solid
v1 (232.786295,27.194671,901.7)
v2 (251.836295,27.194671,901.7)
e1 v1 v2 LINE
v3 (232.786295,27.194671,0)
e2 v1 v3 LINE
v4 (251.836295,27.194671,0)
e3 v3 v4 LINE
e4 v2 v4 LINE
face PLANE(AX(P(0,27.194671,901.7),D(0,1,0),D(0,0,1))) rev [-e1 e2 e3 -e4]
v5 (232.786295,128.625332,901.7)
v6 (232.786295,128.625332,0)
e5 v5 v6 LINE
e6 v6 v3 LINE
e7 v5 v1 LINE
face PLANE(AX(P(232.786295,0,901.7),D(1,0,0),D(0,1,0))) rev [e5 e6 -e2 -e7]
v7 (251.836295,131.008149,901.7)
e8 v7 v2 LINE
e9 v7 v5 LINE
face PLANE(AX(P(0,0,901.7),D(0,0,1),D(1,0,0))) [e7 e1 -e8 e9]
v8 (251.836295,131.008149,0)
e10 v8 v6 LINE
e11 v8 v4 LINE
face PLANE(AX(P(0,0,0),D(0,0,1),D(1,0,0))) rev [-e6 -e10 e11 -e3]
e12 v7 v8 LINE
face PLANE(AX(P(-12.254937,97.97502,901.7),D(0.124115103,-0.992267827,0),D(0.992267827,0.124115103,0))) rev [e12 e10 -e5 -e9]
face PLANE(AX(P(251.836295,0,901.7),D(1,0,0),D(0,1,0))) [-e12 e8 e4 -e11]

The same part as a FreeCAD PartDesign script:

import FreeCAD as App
import Part
import Sketcher
from FreeCAD import Vector
Q = App.Units.Quantity

doc = App.newDocument("Part")
body = doc.addObject("PartDesign::Body", "Body")

sketch1 = body.newObject("Sketcher::SketchObject", "Sketch")
sketch1.AttachmentSupport = (doc.getObject("XY_Plane"), [""])
sketch1.MapMode = "FlatFace"
sketch1.addGeometry([
    Part.LineSegment(Vector(233, 129, 0), Vector(233, 27, 0)),
    Part.LineSegment(Vector(233, 27, 0), Vector(252, 27, 0)),
    Part.LineSegment(Vector(252, 27, 0), Vector(252, 131, 0)),
    Part.LineSegment(Vector(252, 131, 0), Vector(233, 129, 0)),
], False)
sketch1.addConstraint([
    Sketcher.Constraint("Coincident", 0, 2, 1, 1),
    Sketcher.Constraint("Coincident", 1, 2, 2, 1),
    Sketcher.Constraint("Coincident", 2, 2, 3, 1),
    Sketcher.Constraint("Coincident", 3, 2, 0, 1),
    Sketcher.Constraint("Vertical", 0),
    Sketcher.Constraint("Horizontal", 1),
    Sketcher.Constraint("Vertical", 2),
    Sketcher.Constraint("DistanceX", 1, 1, 1, 2, Q("0.75 in")),
    Sketcher.Constraint("DistanceY", 0, 2, 0, 1, Q("101.43066 mm")),
    Sketcher.Constraint("DistanceY", 2, 1, 2, 2, Q("103.813477 mm")),
    Sketcher.Constraint("DistanceY", -1, 1, 0, 2, Q("27.194671 mm")),
    Sketcher.Constraint("DistanceX", -1, 1, 0, 2, Q("232.786295 mm")),
])
pad1 = body.newObject("PartDesign::Pad", "Pad")
pad1.Profile = sketch1
pad1.Length = Q("35.5 in")

doc.recompute()
